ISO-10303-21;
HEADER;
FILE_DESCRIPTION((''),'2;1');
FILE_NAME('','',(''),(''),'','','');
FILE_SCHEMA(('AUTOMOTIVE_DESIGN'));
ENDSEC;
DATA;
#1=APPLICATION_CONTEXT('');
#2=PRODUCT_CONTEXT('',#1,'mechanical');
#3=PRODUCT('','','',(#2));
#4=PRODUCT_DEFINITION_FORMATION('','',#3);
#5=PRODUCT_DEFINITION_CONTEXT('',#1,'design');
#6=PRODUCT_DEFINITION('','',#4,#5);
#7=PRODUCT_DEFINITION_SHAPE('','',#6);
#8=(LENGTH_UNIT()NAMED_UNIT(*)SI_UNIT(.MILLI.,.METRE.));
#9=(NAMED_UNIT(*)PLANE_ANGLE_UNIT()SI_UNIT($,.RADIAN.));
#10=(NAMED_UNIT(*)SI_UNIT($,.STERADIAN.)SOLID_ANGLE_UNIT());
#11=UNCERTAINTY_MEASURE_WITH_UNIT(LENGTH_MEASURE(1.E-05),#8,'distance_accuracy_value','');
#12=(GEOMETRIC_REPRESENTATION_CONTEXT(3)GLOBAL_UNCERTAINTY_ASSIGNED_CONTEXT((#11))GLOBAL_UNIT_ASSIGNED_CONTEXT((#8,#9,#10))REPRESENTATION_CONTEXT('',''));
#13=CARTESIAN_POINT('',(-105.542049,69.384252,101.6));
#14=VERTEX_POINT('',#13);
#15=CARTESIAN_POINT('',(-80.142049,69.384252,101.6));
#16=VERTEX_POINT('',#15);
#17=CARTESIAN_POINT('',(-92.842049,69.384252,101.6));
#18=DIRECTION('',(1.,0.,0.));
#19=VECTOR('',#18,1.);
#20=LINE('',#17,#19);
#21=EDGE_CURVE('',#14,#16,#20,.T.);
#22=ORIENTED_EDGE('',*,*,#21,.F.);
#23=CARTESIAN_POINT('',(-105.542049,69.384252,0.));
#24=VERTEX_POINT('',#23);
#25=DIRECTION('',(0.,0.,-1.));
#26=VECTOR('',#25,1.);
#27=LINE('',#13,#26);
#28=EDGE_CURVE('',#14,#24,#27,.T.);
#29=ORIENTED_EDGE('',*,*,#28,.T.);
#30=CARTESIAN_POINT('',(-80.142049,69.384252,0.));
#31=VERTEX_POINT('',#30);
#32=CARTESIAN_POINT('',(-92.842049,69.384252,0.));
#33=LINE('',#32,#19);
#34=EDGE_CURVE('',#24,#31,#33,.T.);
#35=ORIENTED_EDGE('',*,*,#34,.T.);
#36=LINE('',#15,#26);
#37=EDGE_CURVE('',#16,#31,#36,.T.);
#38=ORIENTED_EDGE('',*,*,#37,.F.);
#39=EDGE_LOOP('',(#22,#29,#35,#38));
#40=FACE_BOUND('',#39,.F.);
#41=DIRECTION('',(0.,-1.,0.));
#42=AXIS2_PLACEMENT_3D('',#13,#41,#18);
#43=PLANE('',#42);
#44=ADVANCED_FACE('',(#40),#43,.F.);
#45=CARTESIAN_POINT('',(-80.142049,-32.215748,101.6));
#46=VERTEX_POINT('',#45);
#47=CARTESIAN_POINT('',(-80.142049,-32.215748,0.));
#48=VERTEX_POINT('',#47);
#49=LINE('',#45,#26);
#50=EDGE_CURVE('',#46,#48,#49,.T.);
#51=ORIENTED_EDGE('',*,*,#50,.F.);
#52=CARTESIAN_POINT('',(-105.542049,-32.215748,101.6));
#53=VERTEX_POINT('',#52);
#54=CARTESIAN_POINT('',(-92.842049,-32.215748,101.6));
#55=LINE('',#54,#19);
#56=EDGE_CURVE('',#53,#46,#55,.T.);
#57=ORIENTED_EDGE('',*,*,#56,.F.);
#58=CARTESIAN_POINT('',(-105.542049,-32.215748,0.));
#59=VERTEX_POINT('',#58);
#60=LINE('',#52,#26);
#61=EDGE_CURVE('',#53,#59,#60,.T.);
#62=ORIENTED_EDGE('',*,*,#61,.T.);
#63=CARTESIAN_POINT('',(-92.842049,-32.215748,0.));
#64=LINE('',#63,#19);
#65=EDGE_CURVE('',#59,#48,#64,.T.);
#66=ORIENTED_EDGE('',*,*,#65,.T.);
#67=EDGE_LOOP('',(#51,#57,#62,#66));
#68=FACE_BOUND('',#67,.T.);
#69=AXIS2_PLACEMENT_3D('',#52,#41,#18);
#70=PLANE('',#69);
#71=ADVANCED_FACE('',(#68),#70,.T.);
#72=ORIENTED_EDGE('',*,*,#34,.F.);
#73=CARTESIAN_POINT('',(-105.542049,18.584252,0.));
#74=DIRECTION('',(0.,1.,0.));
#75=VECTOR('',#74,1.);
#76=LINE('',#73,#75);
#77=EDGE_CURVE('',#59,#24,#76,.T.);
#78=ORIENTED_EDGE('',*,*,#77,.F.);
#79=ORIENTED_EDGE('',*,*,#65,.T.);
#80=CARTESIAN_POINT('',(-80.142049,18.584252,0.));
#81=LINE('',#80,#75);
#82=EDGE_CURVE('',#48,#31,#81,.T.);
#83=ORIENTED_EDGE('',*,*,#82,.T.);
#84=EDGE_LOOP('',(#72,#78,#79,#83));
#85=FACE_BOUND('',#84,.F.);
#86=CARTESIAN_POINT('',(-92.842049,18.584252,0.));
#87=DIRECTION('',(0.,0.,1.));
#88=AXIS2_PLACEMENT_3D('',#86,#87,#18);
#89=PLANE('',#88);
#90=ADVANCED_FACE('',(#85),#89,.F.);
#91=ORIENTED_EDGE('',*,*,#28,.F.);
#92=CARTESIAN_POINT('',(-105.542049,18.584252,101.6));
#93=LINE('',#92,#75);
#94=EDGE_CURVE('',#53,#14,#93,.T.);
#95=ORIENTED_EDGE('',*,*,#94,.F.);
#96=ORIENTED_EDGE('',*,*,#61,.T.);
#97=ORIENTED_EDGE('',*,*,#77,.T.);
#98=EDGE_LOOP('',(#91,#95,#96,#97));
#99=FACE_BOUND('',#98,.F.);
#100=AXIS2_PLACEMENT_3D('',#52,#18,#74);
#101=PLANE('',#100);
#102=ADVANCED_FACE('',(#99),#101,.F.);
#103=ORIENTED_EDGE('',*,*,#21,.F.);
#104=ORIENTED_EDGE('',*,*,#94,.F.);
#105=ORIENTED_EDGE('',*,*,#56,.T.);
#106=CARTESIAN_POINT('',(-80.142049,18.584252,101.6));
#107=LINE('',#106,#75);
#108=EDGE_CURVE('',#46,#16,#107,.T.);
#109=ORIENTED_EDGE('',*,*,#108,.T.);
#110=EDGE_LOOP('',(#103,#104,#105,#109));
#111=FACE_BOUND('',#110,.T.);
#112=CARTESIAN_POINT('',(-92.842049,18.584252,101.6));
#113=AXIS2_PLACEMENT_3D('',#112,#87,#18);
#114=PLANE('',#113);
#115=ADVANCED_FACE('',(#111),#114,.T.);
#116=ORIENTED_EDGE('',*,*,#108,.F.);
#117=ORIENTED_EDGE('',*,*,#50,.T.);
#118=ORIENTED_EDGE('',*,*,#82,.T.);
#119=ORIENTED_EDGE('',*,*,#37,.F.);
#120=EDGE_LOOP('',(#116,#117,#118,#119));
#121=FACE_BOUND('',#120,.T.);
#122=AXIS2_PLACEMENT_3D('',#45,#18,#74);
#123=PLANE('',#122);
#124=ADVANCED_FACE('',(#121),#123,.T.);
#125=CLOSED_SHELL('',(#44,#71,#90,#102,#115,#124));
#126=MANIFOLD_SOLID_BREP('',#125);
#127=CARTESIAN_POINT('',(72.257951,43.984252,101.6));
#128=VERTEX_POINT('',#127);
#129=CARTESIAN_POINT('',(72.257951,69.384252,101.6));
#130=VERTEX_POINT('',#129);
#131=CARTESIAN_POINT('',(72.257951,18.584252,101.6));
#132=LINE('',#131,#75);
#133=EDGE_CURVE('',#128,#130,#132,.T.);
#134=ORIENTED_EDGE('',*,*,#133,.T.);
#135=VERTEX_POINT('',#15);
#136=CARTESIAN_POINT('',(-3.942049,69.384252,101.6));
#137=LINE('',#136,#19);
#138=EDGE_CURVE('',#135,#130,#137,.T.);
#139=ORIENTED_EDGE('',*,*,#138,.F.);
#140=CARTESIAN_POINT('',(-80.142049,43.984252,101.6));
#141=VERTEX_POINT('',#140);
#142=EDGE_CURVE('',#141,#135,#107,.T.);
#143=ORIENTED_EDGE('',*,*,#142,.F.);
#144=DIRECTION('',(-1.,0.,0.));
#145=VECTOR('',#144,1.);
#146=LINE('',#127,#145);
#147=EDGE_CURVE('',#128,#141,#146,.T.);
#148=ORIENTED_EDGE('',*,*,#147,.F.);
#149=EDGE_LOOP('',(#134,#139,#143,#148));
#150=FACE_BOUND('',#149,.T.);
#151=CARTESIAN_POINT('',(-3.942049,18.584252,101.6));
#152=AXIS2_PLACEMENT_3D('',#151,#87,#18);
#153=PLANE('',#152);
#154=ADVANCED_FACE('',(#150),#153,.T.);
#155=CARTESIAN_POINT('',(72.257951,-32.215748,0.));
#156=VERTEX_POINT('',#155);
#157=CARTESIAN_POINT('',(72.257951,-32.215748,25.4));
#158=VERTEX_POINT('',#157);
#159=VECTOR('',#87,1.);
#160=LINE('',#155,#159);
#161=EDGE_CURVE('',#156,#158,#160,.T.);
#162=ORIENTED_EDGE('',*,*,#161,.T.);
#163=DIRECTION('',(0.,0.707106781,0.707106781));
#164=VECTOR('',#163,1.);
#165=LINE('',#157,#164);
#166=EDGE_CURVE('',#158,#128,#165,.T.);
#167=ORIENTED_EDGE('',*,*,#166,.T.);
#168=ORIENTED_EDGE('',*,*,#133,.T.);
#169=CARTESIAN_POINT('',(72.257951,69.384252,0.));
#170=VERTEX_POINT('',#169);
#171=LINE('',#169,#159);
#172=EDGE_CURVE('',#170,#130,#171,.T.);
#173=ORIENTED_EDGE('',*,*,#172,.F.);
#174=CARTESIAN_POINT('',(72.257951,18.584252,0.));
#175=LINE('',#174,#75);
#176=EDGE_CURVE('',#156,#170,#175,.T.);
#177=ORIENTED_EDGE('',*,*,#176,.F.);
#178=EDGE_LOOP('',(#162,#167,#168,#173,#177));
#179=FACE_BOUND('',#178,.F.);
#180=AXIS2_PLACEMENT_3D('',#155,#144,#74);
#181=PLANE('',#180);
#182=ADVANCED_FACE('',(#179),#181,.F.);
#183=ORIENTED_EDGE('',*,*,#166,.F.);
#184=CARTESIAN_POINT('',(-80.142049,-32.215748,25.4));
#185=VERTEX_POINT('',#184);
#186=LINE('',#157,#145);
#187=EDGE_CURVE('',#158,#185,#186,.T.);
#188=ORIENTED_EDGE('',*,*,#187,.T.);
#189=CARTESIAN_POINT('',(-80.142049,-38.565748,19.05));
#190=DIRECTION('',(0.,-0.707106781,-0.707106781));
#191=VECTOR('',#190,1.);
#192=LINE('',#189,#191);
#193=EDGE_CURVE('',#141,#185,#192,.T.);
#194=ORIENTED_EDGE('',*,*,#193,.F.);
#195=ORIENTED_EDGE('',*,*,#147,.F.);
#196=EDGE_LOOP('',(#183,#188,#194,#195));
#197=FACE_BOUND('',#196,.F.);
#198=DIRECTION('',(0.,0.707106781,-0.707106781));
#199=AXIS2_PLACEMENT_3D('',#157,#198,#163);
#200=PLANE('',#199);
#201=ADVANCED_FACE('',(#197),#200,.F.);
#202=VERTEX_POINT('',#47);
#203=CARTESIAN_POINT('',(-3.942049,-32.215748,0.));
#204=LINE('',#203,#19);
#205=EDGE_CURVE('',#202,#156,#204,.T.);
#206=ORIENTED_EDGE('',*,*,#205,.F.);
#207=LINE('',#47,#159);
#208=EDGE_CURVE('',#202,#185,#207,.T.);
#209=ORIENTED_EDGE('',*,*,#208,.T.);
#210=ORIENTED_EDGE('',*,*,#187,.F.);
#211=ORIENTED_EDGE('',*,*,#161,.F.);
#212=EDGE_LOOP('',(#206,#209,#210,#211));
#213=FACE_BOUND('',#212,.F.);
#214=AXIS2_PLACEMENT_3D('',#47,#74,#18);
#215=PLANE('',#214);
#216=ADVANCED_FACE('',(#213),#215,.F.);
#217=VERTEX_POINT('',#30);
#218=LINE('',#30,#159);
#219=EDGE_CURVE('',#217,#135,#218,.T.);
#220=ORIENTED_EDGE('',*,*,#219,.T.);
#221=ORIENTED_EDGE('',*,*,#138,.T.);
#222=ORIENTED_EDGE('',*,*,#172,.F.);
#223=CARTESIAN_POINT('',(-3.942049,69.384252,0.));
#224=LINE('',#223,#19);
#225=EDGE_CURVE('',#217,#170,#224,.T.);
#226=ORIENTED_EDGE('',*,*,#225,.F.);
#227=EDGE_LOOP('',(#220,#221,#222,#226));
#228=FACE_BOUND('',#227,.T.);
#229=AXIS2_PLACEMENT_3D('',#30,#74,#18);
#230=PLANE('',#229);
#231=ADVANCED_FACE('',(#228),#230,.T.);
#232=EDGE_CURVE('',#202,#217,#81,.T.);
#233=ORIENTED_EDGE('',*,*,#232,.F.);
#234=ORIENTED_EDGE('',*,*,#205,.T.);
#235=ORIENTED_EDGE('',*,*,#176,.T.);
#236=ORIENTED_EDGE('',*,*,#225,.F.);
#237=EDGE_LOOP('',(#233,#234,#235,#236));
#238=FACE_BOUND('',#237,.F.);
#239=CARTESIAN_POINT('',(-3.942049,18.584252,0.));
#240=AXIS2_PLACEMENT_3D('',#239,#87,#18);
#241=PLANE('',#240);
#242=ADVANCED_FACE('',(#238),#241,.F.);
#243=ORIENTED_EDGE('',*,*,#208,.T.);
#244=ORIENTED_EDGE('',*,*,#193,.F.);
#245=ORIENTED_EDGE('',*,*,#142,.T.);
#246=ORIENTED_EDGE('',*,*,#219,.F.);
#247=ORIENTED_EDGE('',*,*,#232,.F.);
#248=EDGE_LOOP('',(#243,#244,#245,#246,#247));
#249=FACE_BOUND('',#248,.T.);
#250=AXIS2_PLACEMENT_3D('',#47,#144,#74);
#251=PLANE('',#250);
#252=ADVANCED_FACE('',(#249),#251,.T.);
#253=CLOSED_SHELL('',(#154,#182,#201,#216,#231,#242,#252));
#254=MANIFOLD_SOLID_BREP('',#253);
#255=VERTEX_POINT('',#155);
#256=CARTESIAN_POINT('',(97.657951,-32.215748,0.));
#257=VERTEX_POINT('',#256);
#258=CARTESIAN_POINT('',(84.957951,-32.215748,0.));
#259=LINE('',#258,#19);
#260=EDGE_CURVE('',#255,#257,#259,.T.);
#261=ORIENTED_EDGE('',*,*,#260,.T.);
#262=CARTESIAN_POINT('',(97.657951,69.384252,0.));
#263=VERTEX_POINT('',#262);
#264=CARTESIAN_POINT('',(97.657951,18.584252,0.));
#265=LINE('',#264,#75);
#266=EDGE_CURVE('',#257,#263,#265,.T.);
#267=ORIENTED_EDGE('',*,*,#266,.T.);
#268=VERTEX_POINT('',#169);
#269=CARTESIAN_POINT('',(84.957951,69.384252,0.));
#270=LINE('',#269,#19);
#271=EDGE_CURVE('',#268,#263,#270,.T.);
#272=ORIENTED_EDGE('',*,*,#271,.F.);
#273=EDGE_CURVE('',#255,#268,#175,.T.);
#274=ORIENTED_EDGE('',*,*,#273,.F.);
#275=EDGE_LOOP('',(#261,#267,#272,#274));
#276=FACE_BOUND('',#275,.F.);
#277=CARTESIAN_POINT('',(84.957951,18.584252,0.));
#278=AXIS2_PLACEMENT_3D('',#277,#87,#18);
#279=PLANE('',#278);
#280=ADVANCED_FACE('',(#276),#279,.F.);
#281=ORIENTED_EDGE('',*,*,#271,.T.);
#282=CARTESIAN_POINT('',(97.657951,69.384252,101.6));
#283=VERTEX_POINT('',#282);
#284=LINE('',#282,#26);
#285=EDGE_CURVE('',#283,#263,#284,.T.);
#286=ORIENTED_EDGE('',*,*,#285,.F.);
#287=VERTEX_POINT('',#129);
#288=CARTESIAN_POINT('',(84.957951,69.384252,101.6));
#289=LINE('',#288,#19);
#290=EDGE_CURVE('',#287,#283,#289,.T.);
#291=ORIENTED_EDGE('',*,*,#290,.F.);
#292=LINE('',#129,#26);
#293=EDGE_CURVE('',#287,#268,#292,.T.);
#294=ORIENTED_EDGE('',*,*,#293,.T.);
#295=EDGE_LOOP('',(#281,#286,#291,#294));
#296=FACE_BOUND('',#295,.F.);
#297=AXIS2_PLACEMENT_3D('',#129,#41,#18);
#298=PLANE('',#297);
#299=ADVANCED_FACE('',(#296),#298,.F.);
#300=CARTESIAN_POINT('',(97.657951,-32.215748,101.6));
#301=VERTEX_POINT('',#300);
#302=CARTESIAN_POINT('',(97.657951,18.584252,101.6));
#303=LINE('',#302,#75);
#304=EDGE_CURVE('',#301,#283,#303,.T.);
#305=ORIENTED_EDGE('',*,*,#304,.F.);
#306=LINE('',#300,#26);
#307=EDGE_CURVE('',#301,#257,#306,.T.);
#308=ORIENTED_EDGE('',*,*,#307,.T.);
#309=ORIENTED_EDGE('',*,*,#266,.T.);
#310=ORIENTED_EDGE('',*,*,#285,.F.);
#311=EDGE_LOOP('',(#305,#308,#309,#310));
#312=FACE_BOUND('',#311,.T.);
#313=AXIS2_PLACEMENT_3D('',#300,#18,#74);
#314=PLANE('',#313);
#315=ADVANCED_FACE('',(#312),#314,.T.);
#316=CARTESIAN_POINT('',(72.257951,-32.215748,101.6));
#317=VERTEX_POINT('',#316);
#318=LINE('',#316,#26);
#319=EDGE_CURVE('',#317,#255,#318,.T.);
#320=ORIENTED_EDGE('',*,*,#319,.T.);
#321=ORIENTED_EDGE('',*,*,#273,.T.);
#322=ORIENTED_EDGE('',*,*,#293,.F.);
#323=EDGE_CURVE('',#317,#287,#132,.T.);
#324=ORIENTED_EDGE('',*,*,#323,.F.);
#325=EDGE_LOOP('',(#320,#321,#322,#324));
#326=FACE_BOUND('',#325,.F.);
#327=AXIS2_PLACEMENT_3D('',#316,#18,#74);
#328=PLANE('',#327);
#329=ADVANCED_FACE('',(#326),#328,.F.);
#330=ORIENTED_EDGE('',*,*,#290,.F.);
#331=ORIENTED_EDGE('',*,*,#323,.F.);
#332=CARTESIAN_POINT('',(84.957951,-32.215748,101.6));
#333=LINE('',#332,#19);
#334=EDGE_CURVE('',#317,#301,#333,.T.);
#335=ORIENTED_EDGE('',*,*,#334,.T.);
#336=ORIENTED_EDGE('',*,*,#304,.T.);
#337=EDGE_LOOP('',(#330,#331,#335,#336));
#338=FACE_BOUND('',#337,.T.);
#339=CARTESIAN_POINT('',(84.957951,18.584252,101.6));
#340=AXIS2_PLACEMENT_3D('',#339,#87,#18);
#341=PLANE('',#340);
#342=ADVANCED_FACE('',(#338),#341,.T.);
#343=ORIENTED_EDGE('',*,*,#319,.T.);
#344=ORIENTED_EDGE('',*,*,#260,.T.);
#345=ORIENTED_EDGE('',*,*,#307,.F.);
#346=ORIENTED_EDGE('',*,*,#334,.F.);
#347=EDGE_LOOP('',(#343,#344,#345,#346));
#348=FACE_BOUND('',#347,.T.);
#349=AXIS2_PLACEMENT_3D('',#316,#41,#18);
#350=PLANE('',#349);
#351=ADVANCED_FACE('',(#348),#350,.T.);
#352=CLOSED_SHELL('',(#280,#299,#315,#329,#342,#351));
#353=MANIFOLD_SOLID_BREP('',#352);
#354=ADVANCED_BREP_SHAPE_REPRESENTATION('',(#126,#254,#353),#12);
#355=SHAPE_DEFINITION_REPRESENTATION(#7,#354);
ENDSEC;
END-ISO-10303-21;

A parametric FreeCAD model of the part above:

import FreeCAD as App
import Part
import Sketcher
Q = App.Units.Quantity

doc = App.newDocument("Part")
body = doc.addObject("PartDesign::Body", "Body")

# Sketch on XY plane
sketch1 = body.newObject("Sketcher::SketchObject", "Sketch")
sketch1.AttachmentSupport = (doc.getObject("XY_Plane"), [""])
sketch1.MapMode = "FlatFace"
sketch1.addGeometry([
    Part.LineSegment(App.Vector(-80, 69, 0), App.Vector(-80, -32, 0)),
    Part.LineSegment(App.Vector(-80, -32, 0), App.Vector(72, -32, 0)),
    Part.LineSegment(App.Vector(72, -32, 0), App.Vector(72, 69, 0)),
    Part.LineSegment(App.Vector(72, 69, 0), App.Vector(-80, 69, 0)),
], False)
sketch1.addConstraint([
    Sketcher.Constraint("Coincident", 0, 2, 1, 1),
    Sketcher.Constraint("Coincident", 1, 2, 2, 1),
    Sketcher.Constraint("Coincident", 2, 2, 3, 1),
    Sketcher.Constraint("Coincident", 3, 2, 0, 1),
    Sketcher.Constraint("Vertical", 0),
    Sketcher.Constraint("Horizontal", 1),
    Sketcher.Constraint("Vertical", 2),
    Sketcher.Constraint("Horizontal", 3),
    Sketcher.Constraint("DistanceX", 1, 1, 1, 2, Q("6 in")),
    Sketcher.Constraint("DistanceY", 0, 2, 0, 1, Q("4 in")),
    Sketcher.Constraint("DistanceX", 0, 2, -1, 1, 80.142049),
    Sketcher.Constraint("DistanceY", 0, 2, -1, 1, 32.215748),
])
pad1 = body.newObject("PartDesign::Pad", "Pad")
pad1.Profile = sketch1
pad1.Length = Q("4 in")

# Sketch on YZ plane
sketch2 = body.newObject("Sketcher::SketchObject", "Sketch001")
sketch2.AttachmentSupport = (doc.getObject("YZ_Plane"), [""])
sketch2.MapMode = "FlatFace"
sketch2.AttachmentOffset = App.Placement(App.Vector(0, 0, 72.257951), App.Rotation())
sketch2.addGeometry([
    Part.LineSegment(App.Vector(-32, 102, 0), App.Vector(-32, 25, 0)),
    Part.LineSegment(App.Vector(-32, 25, 0), App.Vector(44, 102, 0)),
    Part.LineSegment(App.Vector(44, 102, 0), App.Vector(-32, 102, 0)),
], False)
sketch2.addConstraint([
    Sketcher.Constraint("Coincident", 0, 2, 1, 1),
    Sketcher.Constraint("Coincident", 1, 2, 2, 1),
    Sketcher.Constraint("Coincident", 2, 2, 0, 1),
    Sketcher.Constraint("Vertical", 0),
    Sketcher.Constraint("Horizontal", 2),
    Sketcher.Constraint("Equal", 2, 0),
    Sketcher.Constraint("DistanceX", 2, 2, 2, 1, Q("3 in")),
    Sketcher.Constraint("DistanceY", -1, 1, 0, 2, Q("1 in")),
    Sketcher.Constraint("DistanceX", -1, 1, 1, 2, 43.984252),
])
pocket1 = body.newObject("PartDesign::Pocket", "Pocket")
pocket1.Profile = sketch2
pocket1.Type = "ThroughAll"
body2 = doc.addObject("PartDesign::Body", "Body001")
body2.AllowCompound = True

# Sketch on XY plane
sketch3 = body2.newObject("Sketcher::SketchObject", "Sketch002")
sketch3.AttachmentSupport = (doc.getObject("XY_Plane001"), [""])
sketch3.MapMode = "FlatFace"
sketch3.AttachmentOffset = App.Placement(App.Vector(0, 0, 4 * 25.4), App.Rotation())
sketch3.addGeometry([
    Part.LineSegment(App.Vector(-106, 69, 0), App.Vector(-106, -32, 0)),  # 0
    Part.LineSegment(App.Vector(-106, -32, 0), App.Vector(-80, -32, 0)),  # 1
    Part.LineSegment(App.Vector(-80, -32, 0), App.Vector(-80, 69, 0)),  # 2
    Part.LineSegment(App.Vector(-80, 69, 0), App.Vector(-106, 69, 0)),  # 3
    Part.LineSegment(App.Vector(72, 69, 0), App.Vector(72, -32, 0)),  # 4
    Part.LineSegment(App.Vector(72, -32, 0), App.Vector(98, -32, 0)),  # 5
    Part.LineSegment(App.Vector(98, -32, 0), App.Vector(98, 69, 0)),  # 6
    Part.LineSegment(App.Vector(98, 69, 0), App.Vector(72, 69, 0)),  # 7
], False)
sketch3.addConstraint([
    Sketcher.Constraint("Coincident", 0, 2, 1, 1),
    Sketcher.Constraint("Coincident", 1, 2, 2, 1),
    Sketcher.Constraint("Coincident", 2, 2, 3, 1),
    Sketcher.Constraint("Coincident", 3, 2, 0, 1),
    Sketcher.Constraint("Coincident", 4, 2, 5, 1),
    Sketcher.Constraint("Coincident", 5, 2, 6, 1),
    Sketcher.Constraint("Coincident", 6, 2, 7, 1),
    Sketcher.Constraint("Coincident", 7, 2, 4, 1),
    Sketcher.Constraint("Vertical", 0),
    Sketcher.Constraint("Horizontal", 1),
    Sketcher.Constraint("Vertical", 2),
    Sketcher.Constraint("Horizontal", 3),
    Sketcher.Constraint("Vertical", 4),
    Sketcher.Constraint("Horizontal", 5),
    Sketcher.Constraint("Vertical", 6),
    Sketcher.Constraint("Horizontal", 7),
    Sketcher.Constraint("Horizontal", 1, 2, 4, 2),
    Sketcher.Constraint("Horizontal", 3, 2, 6, 2),
    Sketcher.Constraint("Equal", 3, 5),
    Sketcher.Constraint("DistanceX", 1, 1, 1, 2, Q("1 in")),
    Sketcher.Constraint("DistanceY", 0, 2, 0, 1, Q("4 in")),
    Sketcher.Constraint("DistanceX", 1, 2, 4, 2, Q("6 in")),
    Sketcher.Constraint("DistanceX", 0, 2, -1, 1, 105.542049),
    Sketcher.Constraint("DistanceY", 0, 2, -1, 1, 32.215748),
])
pad2 = body2.newObject("PartDesign::Pad", "Pad001")
pad2.Profile = sketch3
pad2.Length = Q("4 in")
pad2.Reversed = True

doc.recompute()
